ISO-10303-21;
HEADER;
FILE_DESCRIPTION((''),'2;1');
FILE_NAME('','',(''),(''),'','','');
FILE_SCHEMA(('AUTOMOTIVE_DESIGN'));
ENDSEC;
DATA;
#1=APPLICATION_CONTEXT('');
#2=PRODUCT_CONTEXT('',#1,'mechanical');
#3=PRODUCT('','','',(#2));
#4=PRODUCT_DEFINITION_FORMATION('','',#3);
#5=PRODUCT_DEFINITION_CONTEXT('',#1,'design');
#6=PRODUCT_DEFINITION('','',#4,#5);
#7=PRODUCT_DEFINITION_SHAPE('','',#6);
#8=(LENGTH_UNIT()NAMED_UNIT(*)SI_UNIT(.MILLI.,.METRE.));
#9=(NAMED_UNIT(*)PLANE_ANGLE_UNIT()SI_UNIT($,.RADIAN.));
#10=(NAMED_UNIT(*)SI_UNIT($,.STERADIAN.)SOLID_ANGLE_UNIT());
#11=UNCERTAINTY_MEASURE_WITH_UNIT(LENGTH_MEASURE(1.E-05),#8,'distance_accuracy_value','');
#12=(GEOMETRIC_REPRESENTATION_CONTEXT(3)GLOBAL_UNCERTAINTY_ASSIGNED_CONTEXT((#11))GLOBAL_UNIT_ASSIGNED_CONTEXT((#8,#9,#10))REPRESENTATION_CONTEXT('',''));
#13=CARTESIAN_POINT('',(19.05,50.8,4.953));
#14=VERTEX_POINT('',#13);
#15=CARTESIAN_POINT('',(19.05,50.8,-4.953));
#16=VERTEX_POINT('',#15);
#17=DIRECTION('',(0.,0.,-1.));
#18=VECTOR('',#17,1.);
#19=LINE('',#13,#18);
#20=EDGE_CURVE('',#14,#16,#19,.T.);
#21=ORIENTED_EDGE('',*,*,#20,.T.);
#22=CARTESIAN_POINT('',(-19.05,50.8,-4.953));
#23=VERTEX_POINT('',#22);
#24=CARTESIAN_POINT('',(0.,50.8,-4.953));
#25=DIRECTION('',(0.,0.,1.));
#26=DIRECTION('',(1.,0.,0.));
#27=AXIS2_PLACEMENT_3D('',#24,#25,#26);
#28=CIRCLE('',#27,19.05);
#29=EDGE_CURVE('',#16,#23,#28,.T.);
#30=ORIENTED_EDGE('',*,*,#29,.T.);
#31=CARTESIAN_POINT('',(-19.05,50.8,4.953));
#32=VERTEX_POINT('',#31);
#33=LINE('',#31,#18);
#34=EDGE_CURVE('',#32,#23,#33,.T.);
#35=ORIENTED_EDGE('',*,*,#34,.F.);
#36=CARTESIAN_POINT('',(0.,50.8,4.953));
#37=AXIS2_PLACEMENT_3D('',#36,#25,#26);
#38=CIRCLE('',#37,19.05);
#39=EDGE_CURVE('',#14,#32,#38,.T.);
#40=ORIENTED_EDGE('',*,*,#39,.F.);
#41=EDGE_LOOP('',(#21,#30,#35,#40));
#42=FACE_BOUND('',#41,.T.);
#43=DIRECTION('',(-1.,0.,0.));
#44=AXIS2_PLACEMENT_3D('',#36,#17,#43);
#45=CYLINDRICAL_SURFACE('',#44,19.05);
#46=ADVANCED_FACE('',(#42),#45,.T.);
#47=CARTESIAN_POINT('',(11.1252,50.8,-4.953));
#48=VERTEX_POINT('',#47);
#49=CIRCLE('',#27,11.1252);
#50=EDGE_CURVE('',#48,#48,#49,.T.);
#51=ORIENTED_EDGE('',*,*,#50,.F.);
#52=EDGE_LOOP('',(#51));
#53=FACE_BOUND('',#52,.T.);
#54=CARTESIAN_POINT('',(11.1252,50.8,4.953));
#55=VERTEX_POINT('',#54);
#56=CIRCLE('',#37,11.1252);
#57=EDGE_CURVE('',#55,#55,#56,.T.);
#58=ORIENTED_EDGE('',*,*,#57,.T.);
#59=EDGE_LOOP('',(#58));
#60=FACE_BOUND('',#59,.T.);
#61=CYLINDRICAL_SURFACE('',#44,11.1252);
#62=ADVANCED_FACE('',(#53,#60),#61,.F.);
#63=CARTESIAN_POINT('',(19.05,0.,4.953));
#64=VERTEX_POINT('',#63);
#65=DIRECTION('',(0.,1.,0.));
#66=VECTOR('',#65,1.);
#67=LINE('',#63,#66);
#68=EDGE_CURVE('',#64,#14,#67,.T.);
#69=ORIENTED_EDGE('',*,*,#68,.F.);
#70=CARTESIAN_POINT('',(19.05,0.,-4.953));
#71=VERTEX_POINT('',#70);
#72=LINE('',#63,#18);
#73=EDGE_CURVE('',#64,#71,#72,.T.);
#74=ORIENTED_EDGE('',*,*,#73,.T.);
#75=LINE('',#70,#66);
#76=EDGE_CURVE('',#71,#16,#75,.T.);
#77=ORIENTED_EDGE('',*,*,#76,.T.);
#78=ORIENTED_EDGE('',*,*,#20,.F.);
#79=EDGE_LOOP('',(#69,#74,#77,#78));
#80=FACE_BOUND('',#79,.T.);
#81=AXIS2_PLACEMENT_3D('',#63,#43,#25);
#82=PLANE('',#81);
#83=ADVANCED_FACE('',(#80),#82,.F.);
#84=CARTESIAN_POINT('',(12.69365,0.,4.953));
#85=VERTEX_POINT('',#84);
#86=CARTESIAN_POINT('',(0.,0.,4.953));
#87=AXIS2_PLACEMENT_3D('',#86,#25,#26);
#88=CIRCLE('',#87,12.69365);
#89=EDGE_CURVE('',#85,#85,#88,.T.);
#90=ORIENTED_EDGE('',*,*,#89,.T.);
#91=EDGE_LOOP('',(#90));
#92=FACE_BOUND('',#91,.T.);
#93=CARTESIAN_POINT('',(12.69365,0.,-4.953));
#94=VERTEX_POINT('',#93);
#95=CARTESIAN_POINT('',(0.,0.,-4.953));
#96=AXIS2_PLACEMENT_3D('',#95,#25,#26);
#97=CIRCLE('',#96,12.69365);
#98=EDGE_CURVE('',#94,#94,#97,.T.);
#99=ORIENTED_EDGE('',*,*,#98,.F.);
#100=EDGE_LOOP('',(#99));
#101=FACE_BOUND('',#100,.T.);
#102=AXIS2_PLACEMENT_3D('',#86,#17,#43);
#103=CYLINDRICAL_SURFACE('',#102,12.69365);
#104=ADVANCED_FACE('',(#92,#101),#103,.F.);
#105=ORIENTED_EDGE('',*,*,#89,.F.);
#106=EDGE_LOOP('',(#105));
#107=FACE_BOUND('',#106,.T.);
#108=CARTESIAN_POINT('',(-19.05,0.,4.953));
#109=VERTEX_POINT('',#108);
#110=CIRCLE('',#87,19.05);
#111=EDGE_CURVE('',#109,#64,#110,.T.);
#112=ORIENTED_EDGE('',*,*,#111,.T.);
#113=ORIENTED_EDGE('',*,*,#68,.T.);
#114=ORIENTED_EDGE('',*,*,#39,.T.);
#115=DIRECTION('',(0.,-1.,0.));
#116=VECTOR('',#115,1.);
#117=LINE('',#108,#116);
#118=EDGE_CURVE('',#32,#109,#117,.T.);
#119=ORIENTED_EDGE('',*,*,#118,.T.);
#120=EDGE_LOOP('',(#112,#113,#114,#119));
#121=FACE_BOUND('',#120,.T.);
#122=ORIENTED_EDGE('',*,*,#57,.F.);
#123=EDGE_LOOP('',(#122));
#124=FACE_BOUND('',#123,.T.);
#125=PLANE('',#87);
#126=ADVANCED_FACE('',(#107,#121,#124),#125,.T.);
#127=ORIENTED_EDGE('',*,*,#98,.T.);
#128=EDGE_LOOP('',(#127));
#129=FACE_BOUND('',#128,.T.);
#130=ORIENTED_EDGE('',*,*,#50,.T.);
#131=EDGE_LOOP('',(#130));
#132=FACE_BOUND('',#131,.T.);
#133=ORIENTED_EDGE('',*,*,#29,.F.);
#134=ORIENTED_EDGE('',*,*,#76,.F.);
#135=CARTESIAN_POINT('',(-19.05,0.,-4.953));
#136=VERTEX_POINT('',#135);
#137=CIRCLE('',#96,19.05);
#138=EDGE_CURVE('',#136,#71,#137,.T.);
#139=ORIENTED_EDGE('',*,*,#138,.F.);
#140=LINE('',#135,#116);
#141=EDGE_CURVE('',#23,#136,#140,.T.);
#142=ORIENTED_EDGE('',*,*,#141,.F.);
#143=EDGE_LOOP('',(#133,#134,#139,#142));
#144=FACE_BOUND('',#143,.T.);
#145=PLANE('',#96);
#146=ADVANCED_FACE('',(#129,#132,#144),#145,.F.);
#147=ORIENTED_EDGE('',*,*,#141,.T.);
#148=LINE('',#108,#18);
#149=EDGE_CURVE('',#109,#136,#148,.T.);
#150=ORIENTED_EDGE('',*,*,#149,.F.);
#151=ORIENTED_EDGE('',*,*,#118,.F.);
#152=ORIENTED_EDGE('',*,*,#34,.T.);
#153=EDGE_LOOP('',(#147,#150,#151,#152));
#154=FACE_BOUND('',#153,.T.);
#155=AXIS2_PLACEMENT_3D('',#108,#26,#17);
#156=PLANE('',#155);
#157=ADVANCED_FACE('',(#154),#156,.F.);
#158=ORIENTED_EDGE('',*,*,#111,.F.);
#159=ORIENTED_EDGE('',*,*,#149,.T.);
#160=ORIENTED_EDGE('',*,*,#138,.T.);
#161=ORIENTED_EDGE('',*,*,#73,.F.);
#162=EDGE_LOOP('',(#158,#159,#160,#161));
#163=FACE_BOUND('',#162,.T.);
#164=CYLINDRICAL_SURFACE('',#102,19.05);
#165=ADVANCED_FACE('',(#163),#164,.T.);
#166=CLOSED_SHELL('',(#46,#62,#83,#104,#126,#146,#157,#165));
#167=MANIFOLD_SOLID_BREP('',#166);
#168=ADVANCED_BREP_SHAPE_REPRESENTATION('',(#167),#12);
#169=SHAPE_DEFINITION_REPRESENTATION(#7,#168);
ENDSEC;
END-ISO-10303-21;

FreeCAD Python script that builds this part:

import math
import FreeCAD as App
import Part
import Sketcher
from FreeCAD import Vector
Q = App.Units.Quantity

doc = App.newDocument("Part")
params = doc.addObject("Spreadsheet::Sheet", "Params")
for row, (alias, value) in enumerate([
    ("sketch1_height", "2 in"),
    ("sketch1_radius", "0.75 in"),
    ("sketch1_diameter", "0.876 in"),
    ("pad1_length", "0.39 in"),
], start=1):
    params.set(f"A{row}", alias)
    params.set(f"B{row}", "=" + value)
    params.setAlias(f"B{row}", alias)

body = doc.addObject("PartDesign::Body", "Body")

# Sketch on XY plane
sketch1 = doc.addObject("Sketcher::SketchObject", "Sketch")
body.addObject(sketch1)
sketch1.AttachmentSupport = (doc.XY_Plane, [""])
sketch1.MapMode = "FlatFace"
sketch1.addGeometry([
    Part.LineSegment(Vector(-19.05, 50.8, 0), Vector(-19.05, 0, 0)),  # 0
    Part.ArcOfCircle(Part.Circle(Vector(0, 0, 0), Vector(0, 0, 1), 19.05), math.radians(180), math.radians(360)),  # 1
    Part.LineSegment(Vector(19.05, 0, 0), Vector(19.05, 50.8, 0)),  # 2
    Part.ArcOfCircle(Part.Circle(Vector(0, 50.8, 0), Vector(0, 0, 1), 19.05), math.radians(0), math.radians(180)),  # 3
    Part.Circle(Vector(0, 0, 0), Vector(0, 0, 1), 12.69365),  # 4
    Part.Circle(Vector(0, 50.8, 0), Vector(0, 0, 1), 11.1252),  # 5
], False)
sketch1.addConstraint([
    Sketcher.Constraint("Tangent", 0, 2, 1, 1),
    Sketcher.Constraint("Tangent", 1, 2, 2, 1),
    Sketcher.Constraint("Tangent", 2, 2, 3, 1),
    Sketcher.Constraint("Tangent", 3, 2, 0, 1),
    Sketcher.Constraint("Vertical", 0),
    Sketcher.Constraint("Vertical", 2),
    Sketcher.Constraint("Coincident", 1, 3, -1, 1),
    Sketcher.Constraint("Coincident", 4, 3, -1, 1),
    Sketcher.Constraint("Coincident", 5, 3, 3, 3),
    Sketcher.Constraint("DistanceY", 0, 2, 0, 1, Q("2 in")),
    Sketcher.Constraint("Radius", 1, Q("0.75 in")),
    Sketcher.Constraint("Diameter", 5, Q("0.876 in")),
    Sketcher.Constraint("Diameter", 4, Q("0.9995 in")),
])
sketch1.setExpression("Constraints[9]", "Params.sketch1_height")
sketch1.setExpression("Constraints[10]", "Params.sketch1_radius")
sketch1.setExpression("Constraints[11]", "Params.sketch1_diameter")
pad1 = doc.addObject("PartDesign::Pad", "Pad")
body.addObject(pad1)
pad1.Profile = sketch1
pad1.setExpression("Length", "Params.pad1_length")
pad1.Midplane = True

doc.recompute()
